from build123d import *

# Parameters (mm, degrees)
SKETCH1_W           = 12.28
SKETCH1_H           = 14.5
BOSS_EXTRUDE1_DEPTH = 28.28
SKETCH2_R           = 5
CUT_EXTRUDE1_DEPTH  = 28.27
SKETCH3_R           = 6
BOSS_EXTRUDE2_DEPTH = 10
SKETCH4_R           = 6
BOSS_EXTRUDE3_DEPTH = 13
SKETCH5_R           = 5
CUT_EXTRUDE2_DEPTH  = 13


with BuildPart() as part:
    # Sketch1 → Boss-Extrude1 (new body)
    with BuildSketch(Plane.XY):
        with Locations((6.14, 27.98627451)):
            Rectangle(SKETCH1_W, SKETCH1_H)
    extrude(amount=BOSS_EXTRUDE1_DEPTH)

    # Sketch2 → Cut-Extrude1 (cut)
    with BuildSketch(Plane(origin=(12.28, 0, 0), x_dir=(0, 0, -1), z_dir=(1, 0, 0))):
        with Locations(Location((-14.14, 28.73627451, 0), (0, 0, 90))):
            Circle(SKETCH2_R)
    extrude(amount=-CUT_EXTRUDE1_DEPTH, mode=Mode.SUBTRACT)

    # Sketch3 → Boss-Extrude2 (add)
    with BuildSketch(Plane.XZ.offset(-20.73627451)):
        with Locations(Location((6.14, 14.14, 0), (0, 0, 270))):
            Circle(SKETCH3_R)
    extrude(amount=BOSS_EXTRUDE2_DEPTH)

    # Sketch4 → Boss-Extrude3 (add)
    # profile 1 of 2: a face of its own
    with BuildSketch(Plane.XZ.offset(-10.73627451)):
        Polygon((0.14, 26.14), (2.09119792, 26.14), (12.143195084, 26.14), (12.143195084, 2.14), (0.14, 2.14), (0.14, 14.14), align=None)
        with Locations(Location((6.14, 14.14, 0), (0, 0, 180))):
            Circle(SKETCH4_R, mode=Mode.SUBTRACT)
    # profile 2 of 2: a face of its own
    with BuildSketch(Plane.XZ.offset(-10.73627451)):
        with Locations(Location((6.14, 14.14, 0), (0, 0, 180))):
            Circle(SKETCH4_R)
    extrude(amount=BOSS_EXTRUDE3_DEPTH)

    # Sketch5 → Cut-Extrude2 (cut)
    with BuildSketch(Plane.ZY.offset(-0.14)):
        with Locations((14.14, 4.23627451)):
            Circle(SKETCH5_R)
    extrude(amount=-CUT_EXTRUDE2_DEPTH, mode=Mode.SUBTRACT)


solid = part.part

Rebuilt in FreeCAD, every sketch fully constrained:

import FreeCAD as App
import Part
import Sketcher
Q = App.Units.Quantity


def add_polygon(sketch, points):
    """Adds a closed chain of lines whose ends are joined by coincident constraints."""
    first, n = sketch.GeometryCount, len(points)
    for a, b in zip(points, points[1:] + points[:1]):
        sketch.addGeometry(Part.LineSegment(App.Vector(*a, 0), App.Vector(*b, 0)), False)
    for i in range(n):
        sketch.addConstraint(Sketcher.Constraint("Coincident", first + i, 2, first + (i + 1) % n, 1))

doc = App.newDocument("Part")
body = doc.addObject("PartDesign::Body", "Body")

sketch1 = body.newObject("Sketcher::SketchObject", "Sketch")
sketch1.AttachmentSupport = (doc.getObject("XY_Plane"), [""])
sketch1.MapMode = "FlatFace"
add_polygon(sketch1, [(0, 35.236275), (0, 20.736275), (12.28, 20.736275), (12.28, 35.236275)])
sketch1.addConstraint(Sketcher.Constraint("Vertical", 0))
sketch1.addConstraint(Sketcher.Constraint("Horizontal", 1))
sketch1.addConstraint(Sketcher.Constraint("Vertical", 2))
sketch1.addConstraint(Sketcher.Constraint("Horizontal", 3))
sketch1.addConstraint(Sketcher.Constraint("PointOnObject", 0, 2, -2))
sketch1.addConstraint(Sketcher.Constraint("DistanceY", 0, 2, 0, 1, Q("14.5 mm")))
sketch1.addConstraint(Sketcher.Constraint("DistanceX", 1, 1, 1, 2, Q("12.28 mm")))
sketch1.addConstraint(Sketcher.Constraint("DistanceY", -1, 1, 0, 2, Q("20.736275 mm")))
pad1 = body.newObject("PartDesign::Pad", "Pad")
pad1.Profile = sketch1
pad1.Length = 28.28

sketch2 = body.newObject("Sketcher::SketchObject", "Sketch001")
sketch2.AttachmentSupport = (doc.getObject("YZ_Plane"), [""])
sketch2.MapMode = "FlatFace"
sketch2.AttachmentOffset = App.Placement(App.Vector(0, 0, 12.28), App.Rotation())
sketch2.addGeometry(Part.Circle(App.Vector(28.736275, 14.14, 0), App.Vector(0, 0, 1), 5), False)
sketch2.addConstraint(Sketcher.Constraint("Diameter", 0, Q("10 mm")))
sketch2.addConstraint(Sketcher.Constraint("DistanceY", -1, 1, 0, 3, Q("14.14 mm")))
sketch2.addConstraint(Sketcher.Constraint("DistanceX", -1, 1, 0, 3, Q("28.736275 mm")))
pocket1 = body.newObject("PartDesign::Pocket", "Pocket")
pocket1.Profile = sketch2
pocket1.Length = 28.27

sketch3 = body.newObject("Sketcher::SketchObject", "Sketch002")
sketch3.AttachmentSupport = (doc.getObject("XZ_Plane"), [""])
sketch3.MapMode = "FlatFace"
sketch3.AttachmentOffset = App.Placement(App.Vector(0, 0, -20.736275), App.Rotation())
sketch3.addGeometry(Part.Circle(App.Vector(6.14, 14.14, 0), App.Vector(0, 0, 1), 6), False)
sketch3.addConstraint(Sketcher.Constraint("Diameter", 0, Q("12 mm")))
sketch3.addConstraint(Sketcher.Constraint("DistanceX", -1, 1, 0, 3, Q("6.14 mm")))
sketch3.addConstraint(Sketcher.Constraint("DistanceY", -1, 1, 0, 3, Q("14.14 mm")))
pad2 = body.newObject("PartDesign::Pad", "Pad001")
pad2.Profile = sketch3
pad2.Length = 10

sketch4 = body.newObject("Sketcher::SketchObject", "Sketch003")
sketch4.AttachmentSupport = (doc.getObject("XZ_Plane"), [""])
sketch4.MapMode = "FlatFace"
sketch4.AttachmentOffset = App.Placement(App.Vector(0, 0, -10.736275), App.Rotation())
add_polygon(sketch4, [(12.143195, 26.14), (0.14, 26.14), (0.14, 2.14), (12.143195, 2.14)])
sketch4.addConstraint(Sketcher.Constraint("Horizontal", 0))
sketch4.addConstraint(Sketcher.Constraint("Vertical", 1))
sketch4.addConstraint(Sketcher.Constraint("Horizontal", 2))
sketch4.addConstraint(Sketcher.Constraint("Vertical", 3))
sketch4.addConstraint(Sketcher.Constraint("DistanceY", 1, 2, 1, 1, Q("24 mm")))
sketch4.addConstraint(Sketcher.Constraint("DistanceX", -1, 1, 0, 2, Q("0.14 mm")))
sketch4.addConstraint(Sketcher.Constraint("DistanceY", -1, 1, 0, 2, Q("26.14 mm")))
sketch4.addConstraint(Sketcher.Constraint("DistanceX", 0, 2, 0, 1, Q("12.003195 mm")))
pad3 = body.newObject("PartDesign::Pad", "Pad002")
pad3.Profile = sketch4
pad3.Length = 13

sketch5 = body.newObject("Sketcher::SketchObject", "Sketch004")
sketch5.AttachmentSupport = (doc.getObject("YZ_Plane"), [""])
sketch5.MapMode = "FlatFace"
sketch5.AttachmentOffset = App.Placement(App.Vector(0, 0, 0.14), App.Rotation())
sketch5.addGeometry(Part.Circle(App.Vector(4.236275, 14.14, 0), App.Vector(0, 0, 1), 5), False)
sketch5.addConstraint(Sketcher.Constraint("Diameter", 0, Q("10 mm")))
sketch5.addConstraint(Sketcher.Constraint("DistanceY", -1, 1, 0, 3, Q("14.14 mm")))
sketch5.addConstraint(Sketcher.Constraint("DistanceX", -1, 1, 0, 3, Q("4.236275 mm")))
pocket2 = body.newObject("PartDesign::Pocket", "Pocket001")
pocket2.Profile = sketch5
pocket2.Length = 13
pocket2.Reversed = True

doc.recompute()
